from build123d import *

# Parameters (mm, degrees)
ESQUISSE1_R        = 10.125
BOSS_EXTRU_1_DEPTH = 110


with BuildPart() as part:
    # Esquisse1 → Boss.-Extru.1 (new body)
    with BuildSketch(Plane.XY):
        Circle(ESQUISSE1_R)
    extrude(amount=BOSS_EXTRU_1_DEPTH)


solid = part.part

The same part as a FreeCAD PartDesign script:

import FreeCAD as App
import Part
import Sketcher

doc = App.newDocument("Part")
body = doc.addObject("PartDesign::Body", "Body")

# Sketch on XY plane
sketch1 = doc.addObject("Sketcher::SketchObject", "Sketch")
body.addObject(sketch1)
sketch1.AttachmentSupport = (doc.XY_Plane, [""])
sketch1.MapMode = "FlatFace"
sketch1.addGeometry(Part.Circle(App.Vector(0, 0, 0), App.Vector(0, 0, 1), 10.125), False)
sketch1.addConstraint([
    Sketcher.Constraint("Coincident", 0, 3, -1, 1),
    Sketcher.Constraint("Diameter", 0, 20.25),
])
pad1 = doc.addObject("PartDesign::Pad", "Pad")
body.addObject(pad1)
pad1.Profile = sketch1
pad1.Length = 110

doc.recompute()
